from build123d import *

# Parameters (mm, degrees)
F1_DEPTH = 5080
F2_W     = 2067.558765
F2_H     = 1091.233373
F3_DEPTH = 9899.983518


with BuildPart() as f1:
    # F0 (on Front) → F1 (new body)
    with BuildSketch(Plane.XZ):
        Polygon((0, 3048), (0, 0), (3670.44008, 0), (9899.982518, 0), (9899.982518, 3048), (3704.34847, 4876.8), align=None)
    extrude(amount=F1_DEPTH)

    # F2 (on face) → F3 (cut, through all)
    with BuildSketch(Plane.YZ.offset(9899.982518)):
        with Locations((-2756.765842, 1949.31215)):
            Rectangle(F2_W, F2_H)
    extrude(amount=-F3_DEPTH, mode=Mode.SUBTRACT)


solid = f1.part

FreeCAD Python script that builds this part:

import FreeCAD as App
import Part
import Sketcher
Q = App.Units.Quantity


def add_polygon(sketch, points):
    """Adds a closed chain of lines whose ends are joined by coincident constraints."""
    first, n = sketch.GeometryCount, len(points)
    for a, b in zip(points, points[1:] + points[:1]):
        sketch.addGeometry(Part.LineSegment(App.Vector(*a, 0), App.Vector(*b, 0)), False)
    for i in range(n):
        sketch.addConstraint(Sketcher.Constraint("Coincident", first + i, 2, first + (i + 1) % n, 1))

doc = App.newDocument("Part")
body = doc.addObject("PartDesign::Body", "Body")

sketch1 = body.newObject("Sketcher::SketchObject", "Sketch")
sketch1.AttachmentSupport = (doc.getObject("XZ_Plane"), [""])
sketch1.MapMode = "FlatFace"
add_polygon(sketch1, [(0, 3048), (0, 0), (9899.982518, 0), (9899.982518, 3048), (3704.34847, 4876.8)])
sketch1.addConstraint(Sketcher.Constraint("Vertical", 0))
sketch1.addConstraint(Sketcher.Constraint("Horizontal", 1))
sketch1.addConstraint(Sketcher.Constraint("Vertical", 2))
sketch1.addConstraint(Sketcher.Constraint("Coincident", 0, 2, -1, 1))
sketch1.addConstraint(Sketcher.Constraint("Horizontal", 2, 2, 4, 2))
sketch1.addConstraint(Sketcher.Constraint("DistanceY", 0, 2, 0, 1, Q("120 in")))
sketch1.addConstraint(Sketcher.Constraint("DistanceY", -1, 1, 3, 2, Q("192 in")))
sketch1.addConstraint(Sketcher.Constraint("Distance", 3, 6459.9064))
sketch1.addConstraint(Sketcher.Constraint("DistanceX", 1, 1, 1, 2, 9899.982518))
pad1 = body.newObject("PartDesign::Pad", "Pad")
pad1.Profile = sketch1
pad1.Length = Q("200 in")

sketch2 = body.newObject("Sketcher::SketchObject", "Sketch001")
sketch2.AttachmentSupport = (doc.getObject("YZ_Plane"), [""])
sketch2.MapMode = "FlatFace"
sketch2.AttachmentOffset = App.Placement(App.Vector(0, 0, 9899.982518), App.Rotation())
add_polygon(sketch2, [(-3790.545225, 2494.928837), (-3790.545225, 1403.695463), (-1722.986459, 1403.695463), (-1722.986459, 2494.928837)])
sketch2.addConstraint(Sketcher.Constraint("Vertical", 0))
sketch2.addConstraint(Sketcher.Constraint("Horizontal", 1))
sketch2.addConstraint(Sketcher.Constraint("Vertical", 2))
sketch2.addConstraint(Sketcher.Constraint("Horizontal", 3))
sketch2.addConstraint(Sketcher.Constraint("DistanceX", 1, 1, 1, 2, 2067.558765))
sketch2.addConstraint(Sketcher.Constraint("DistanceY", 0, 2, 0, 1, 1091.233373))
sketch2.addConstraint(Sketcher.Constraint("DistanceX", 1, 2, -1, 1, 1722.986459))
sketch2.addConstraint(Sketcher.Constraint("DistanceY", -1, 1, 0, 2, 1403.695463))
pocket1 = body.newObject("PartDesign::Pocket", "Pocket")
pocket1.Profile = sketch2
pocket1.Type = "ThroughAll"

doc.recompute()
